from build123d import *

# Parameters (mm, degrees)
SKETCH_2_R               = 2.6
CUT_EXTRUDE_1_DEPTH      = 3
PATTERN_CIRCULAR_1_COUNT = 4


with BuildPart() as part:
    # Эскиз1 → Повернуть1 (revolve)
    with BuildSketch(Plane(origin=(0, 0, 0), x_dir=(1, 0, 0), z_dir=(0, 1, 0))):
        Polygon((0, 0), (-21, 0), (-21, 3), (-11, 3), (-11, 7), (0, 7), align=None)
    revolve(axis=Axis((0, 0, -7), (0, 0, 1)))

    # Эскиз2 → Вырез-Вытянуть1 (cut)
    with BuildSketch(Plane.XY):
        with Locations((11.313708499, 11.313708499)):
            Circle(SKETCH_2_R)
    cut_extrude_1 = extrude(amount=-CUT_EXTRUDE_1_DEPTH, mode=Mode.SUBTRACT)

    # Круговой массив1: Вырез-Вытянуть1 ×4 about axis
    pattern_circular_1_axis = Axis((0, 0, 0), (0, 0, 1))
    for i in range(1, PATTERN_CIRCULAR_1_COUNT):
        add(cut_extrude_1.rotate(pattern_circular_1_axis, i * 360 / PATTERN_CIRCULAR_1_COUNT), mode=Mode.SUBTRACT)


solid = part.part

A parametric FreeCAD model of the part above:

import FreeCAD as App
import Part
import Sketcher
Q = App.Units.Quantity

doc = App.newDocument("Part")
params = doc.addObject("Spreadsheet::Sheet", "Params")
for row, (alias, value) in enumerate([
    ("sketch1_width", "21 mm"),
    ("sketch1_width2", "11 mm"),
    ("sketch1_height", "7 mm"),
    ("sketch1_height2", "4 mm"),
    ("revolution_angle", "360 deg"),
    ("sketch2_diameter", "5.2 mm"),
    ("pocket1_length", "3 mm"),
], start=1):
    params.set(f"A{row}", alias)
    params.set(f"B{row}", "=" + value)
    params.setAlias(f"B{row}", alias)

body = doc.addObject("PartDesign::Body", "Body")

sketch1 = body.newObject("Sketcher::SketchObject", "Sketch")
sketch1.AttachmentSupport = (doc.getObject("XZ_Plane"), [""])
sketch1.MapMode = "FlatFace"
sketch1.addGeometry([
    Part.LineSegment(App.Vector(-21, 0, 0), App.Vector(0, 0, 0)),
    Part.LineSegment(App.Vector(0, 0, 0), App.Vector(0, -7, 0)),
    Part.LineSegment(App.Vector(0, -7, 0), App.Vector(-11, -7, 0)),
    Part.LineSegment(App.Vector(-11, -7, 0), App.Vector(-11, -3, 0)),
    Part.LineSegment(App.Vector(-11, -3, 0), App.Vector(-21, -3, 0)),
    Part.LineSegment(App.Vector(-21, -3, 0), App.Vector(-21, 0, 0)),
], False)
sketch1.addConstraint([
    Sketcher.Constraint("Coincident", 0, 2, 1, 1),
    Sketcher.Constraint("Coincident", 1, 2, 2, 1),
    Sketcher.Constraint("Coincident", 2, 2, 3, 1),
    Sketcher.Constraint("Coincident", 3, 2, 4, 1),
    Sketcher.Constraint("Coincident", 4, 2, 5, 1),
    Sketcher.Constraint("Coincident", 5, 2, 0, 1),
    Sketcher.Constraint("Horizontal", 0),
    Sketcher.Constraint("Vertical", 1),
    Sketcher.Constraint("Horizontal", 2),
    Sketcher.Constraint("Vertical", 3),
    Sketcher.Constraint("Horizontal", 4),
    Sketcher.Constraint("Vertical", 5),
    Sketcher.Constraint("Coincident", 0, 2, -1, 1),
    Sketcher.Constraint("DistanceX", 0, 1, 0, 2, Q("21 mm")),
    Sketcher.Constraint("DistanceX", 2, 2, 2, 1, Q("11 mm")),
    Sketcher.Constraint("DistanceY", 1, 2, 1, 1, Q("7 mm")),
    Sketcher.Constraint("DistanceY", 3, 1, 3, 2, Q("4 mm")),
])
sketch1.setExpression("Constraints[13]", "Params.sketch1_width")
sketch1.setExpression("Constraints[14]", "Params.sketch1_width2")
sketch1.setExpression("Constraints[15]", "Params.sketch1_height")
sketch1.setExpression("Constraints[16]", "Params.sketch1_height2")
revolution = body.newObject("PartDesign::Revolution", "Revolution")
revolution.Profile = sketch1
revolution.ReferenceAxis = (sketch1, ["V_Axis"])
revolution.setExpression("Angle", "Params.revolution_angle")

sketch2 = body.newObject("Sketcher::SketchObject", "Sketch001")
sketch2.AttachmentSupport = (doc.getObject("XY_Plane"), [""])
sketch2.MapMode = "FlatFace"
sketch2.addGeometry(Part.Circle(App.Vector(11.313708, 11.313708, 0), App.Vector(0, 0, 1), 2.6), False)
sketch2.addConstraint([
    Sketcher.Constraint("Diameter", 0, Q("5.2 mm")),
    Sketcher.Constraint("DistanceX", -1, 1, 0, 3, Q("11.313708 mm")),
    Sketcher.Constraint("DistanceY", -1, 1, 0, 3, Q("11.313708 mm")),
])
sketch2.setExpression("Constraints[0]", "Params.sketch2_diameter")
pocket1 = body.newObject("PartDesign::Pocket", "Pocket")
pocket1.Profile = sketch2
pocket1.setExpression("Length", "Params.pocket1_length")
doc.recompute()

polarpattern = body.newObject("PartDesign::PolarPattern", "PolarPattern")
polarpattern.Originals = [pocket1]
polarpattern.Axis = (doc.getObject("Z_Axis"), [""])
polarpattern.Angle = 360
polarpattern.Occurrences = 4
body.Tip = polarpattern

doc.recompute()
